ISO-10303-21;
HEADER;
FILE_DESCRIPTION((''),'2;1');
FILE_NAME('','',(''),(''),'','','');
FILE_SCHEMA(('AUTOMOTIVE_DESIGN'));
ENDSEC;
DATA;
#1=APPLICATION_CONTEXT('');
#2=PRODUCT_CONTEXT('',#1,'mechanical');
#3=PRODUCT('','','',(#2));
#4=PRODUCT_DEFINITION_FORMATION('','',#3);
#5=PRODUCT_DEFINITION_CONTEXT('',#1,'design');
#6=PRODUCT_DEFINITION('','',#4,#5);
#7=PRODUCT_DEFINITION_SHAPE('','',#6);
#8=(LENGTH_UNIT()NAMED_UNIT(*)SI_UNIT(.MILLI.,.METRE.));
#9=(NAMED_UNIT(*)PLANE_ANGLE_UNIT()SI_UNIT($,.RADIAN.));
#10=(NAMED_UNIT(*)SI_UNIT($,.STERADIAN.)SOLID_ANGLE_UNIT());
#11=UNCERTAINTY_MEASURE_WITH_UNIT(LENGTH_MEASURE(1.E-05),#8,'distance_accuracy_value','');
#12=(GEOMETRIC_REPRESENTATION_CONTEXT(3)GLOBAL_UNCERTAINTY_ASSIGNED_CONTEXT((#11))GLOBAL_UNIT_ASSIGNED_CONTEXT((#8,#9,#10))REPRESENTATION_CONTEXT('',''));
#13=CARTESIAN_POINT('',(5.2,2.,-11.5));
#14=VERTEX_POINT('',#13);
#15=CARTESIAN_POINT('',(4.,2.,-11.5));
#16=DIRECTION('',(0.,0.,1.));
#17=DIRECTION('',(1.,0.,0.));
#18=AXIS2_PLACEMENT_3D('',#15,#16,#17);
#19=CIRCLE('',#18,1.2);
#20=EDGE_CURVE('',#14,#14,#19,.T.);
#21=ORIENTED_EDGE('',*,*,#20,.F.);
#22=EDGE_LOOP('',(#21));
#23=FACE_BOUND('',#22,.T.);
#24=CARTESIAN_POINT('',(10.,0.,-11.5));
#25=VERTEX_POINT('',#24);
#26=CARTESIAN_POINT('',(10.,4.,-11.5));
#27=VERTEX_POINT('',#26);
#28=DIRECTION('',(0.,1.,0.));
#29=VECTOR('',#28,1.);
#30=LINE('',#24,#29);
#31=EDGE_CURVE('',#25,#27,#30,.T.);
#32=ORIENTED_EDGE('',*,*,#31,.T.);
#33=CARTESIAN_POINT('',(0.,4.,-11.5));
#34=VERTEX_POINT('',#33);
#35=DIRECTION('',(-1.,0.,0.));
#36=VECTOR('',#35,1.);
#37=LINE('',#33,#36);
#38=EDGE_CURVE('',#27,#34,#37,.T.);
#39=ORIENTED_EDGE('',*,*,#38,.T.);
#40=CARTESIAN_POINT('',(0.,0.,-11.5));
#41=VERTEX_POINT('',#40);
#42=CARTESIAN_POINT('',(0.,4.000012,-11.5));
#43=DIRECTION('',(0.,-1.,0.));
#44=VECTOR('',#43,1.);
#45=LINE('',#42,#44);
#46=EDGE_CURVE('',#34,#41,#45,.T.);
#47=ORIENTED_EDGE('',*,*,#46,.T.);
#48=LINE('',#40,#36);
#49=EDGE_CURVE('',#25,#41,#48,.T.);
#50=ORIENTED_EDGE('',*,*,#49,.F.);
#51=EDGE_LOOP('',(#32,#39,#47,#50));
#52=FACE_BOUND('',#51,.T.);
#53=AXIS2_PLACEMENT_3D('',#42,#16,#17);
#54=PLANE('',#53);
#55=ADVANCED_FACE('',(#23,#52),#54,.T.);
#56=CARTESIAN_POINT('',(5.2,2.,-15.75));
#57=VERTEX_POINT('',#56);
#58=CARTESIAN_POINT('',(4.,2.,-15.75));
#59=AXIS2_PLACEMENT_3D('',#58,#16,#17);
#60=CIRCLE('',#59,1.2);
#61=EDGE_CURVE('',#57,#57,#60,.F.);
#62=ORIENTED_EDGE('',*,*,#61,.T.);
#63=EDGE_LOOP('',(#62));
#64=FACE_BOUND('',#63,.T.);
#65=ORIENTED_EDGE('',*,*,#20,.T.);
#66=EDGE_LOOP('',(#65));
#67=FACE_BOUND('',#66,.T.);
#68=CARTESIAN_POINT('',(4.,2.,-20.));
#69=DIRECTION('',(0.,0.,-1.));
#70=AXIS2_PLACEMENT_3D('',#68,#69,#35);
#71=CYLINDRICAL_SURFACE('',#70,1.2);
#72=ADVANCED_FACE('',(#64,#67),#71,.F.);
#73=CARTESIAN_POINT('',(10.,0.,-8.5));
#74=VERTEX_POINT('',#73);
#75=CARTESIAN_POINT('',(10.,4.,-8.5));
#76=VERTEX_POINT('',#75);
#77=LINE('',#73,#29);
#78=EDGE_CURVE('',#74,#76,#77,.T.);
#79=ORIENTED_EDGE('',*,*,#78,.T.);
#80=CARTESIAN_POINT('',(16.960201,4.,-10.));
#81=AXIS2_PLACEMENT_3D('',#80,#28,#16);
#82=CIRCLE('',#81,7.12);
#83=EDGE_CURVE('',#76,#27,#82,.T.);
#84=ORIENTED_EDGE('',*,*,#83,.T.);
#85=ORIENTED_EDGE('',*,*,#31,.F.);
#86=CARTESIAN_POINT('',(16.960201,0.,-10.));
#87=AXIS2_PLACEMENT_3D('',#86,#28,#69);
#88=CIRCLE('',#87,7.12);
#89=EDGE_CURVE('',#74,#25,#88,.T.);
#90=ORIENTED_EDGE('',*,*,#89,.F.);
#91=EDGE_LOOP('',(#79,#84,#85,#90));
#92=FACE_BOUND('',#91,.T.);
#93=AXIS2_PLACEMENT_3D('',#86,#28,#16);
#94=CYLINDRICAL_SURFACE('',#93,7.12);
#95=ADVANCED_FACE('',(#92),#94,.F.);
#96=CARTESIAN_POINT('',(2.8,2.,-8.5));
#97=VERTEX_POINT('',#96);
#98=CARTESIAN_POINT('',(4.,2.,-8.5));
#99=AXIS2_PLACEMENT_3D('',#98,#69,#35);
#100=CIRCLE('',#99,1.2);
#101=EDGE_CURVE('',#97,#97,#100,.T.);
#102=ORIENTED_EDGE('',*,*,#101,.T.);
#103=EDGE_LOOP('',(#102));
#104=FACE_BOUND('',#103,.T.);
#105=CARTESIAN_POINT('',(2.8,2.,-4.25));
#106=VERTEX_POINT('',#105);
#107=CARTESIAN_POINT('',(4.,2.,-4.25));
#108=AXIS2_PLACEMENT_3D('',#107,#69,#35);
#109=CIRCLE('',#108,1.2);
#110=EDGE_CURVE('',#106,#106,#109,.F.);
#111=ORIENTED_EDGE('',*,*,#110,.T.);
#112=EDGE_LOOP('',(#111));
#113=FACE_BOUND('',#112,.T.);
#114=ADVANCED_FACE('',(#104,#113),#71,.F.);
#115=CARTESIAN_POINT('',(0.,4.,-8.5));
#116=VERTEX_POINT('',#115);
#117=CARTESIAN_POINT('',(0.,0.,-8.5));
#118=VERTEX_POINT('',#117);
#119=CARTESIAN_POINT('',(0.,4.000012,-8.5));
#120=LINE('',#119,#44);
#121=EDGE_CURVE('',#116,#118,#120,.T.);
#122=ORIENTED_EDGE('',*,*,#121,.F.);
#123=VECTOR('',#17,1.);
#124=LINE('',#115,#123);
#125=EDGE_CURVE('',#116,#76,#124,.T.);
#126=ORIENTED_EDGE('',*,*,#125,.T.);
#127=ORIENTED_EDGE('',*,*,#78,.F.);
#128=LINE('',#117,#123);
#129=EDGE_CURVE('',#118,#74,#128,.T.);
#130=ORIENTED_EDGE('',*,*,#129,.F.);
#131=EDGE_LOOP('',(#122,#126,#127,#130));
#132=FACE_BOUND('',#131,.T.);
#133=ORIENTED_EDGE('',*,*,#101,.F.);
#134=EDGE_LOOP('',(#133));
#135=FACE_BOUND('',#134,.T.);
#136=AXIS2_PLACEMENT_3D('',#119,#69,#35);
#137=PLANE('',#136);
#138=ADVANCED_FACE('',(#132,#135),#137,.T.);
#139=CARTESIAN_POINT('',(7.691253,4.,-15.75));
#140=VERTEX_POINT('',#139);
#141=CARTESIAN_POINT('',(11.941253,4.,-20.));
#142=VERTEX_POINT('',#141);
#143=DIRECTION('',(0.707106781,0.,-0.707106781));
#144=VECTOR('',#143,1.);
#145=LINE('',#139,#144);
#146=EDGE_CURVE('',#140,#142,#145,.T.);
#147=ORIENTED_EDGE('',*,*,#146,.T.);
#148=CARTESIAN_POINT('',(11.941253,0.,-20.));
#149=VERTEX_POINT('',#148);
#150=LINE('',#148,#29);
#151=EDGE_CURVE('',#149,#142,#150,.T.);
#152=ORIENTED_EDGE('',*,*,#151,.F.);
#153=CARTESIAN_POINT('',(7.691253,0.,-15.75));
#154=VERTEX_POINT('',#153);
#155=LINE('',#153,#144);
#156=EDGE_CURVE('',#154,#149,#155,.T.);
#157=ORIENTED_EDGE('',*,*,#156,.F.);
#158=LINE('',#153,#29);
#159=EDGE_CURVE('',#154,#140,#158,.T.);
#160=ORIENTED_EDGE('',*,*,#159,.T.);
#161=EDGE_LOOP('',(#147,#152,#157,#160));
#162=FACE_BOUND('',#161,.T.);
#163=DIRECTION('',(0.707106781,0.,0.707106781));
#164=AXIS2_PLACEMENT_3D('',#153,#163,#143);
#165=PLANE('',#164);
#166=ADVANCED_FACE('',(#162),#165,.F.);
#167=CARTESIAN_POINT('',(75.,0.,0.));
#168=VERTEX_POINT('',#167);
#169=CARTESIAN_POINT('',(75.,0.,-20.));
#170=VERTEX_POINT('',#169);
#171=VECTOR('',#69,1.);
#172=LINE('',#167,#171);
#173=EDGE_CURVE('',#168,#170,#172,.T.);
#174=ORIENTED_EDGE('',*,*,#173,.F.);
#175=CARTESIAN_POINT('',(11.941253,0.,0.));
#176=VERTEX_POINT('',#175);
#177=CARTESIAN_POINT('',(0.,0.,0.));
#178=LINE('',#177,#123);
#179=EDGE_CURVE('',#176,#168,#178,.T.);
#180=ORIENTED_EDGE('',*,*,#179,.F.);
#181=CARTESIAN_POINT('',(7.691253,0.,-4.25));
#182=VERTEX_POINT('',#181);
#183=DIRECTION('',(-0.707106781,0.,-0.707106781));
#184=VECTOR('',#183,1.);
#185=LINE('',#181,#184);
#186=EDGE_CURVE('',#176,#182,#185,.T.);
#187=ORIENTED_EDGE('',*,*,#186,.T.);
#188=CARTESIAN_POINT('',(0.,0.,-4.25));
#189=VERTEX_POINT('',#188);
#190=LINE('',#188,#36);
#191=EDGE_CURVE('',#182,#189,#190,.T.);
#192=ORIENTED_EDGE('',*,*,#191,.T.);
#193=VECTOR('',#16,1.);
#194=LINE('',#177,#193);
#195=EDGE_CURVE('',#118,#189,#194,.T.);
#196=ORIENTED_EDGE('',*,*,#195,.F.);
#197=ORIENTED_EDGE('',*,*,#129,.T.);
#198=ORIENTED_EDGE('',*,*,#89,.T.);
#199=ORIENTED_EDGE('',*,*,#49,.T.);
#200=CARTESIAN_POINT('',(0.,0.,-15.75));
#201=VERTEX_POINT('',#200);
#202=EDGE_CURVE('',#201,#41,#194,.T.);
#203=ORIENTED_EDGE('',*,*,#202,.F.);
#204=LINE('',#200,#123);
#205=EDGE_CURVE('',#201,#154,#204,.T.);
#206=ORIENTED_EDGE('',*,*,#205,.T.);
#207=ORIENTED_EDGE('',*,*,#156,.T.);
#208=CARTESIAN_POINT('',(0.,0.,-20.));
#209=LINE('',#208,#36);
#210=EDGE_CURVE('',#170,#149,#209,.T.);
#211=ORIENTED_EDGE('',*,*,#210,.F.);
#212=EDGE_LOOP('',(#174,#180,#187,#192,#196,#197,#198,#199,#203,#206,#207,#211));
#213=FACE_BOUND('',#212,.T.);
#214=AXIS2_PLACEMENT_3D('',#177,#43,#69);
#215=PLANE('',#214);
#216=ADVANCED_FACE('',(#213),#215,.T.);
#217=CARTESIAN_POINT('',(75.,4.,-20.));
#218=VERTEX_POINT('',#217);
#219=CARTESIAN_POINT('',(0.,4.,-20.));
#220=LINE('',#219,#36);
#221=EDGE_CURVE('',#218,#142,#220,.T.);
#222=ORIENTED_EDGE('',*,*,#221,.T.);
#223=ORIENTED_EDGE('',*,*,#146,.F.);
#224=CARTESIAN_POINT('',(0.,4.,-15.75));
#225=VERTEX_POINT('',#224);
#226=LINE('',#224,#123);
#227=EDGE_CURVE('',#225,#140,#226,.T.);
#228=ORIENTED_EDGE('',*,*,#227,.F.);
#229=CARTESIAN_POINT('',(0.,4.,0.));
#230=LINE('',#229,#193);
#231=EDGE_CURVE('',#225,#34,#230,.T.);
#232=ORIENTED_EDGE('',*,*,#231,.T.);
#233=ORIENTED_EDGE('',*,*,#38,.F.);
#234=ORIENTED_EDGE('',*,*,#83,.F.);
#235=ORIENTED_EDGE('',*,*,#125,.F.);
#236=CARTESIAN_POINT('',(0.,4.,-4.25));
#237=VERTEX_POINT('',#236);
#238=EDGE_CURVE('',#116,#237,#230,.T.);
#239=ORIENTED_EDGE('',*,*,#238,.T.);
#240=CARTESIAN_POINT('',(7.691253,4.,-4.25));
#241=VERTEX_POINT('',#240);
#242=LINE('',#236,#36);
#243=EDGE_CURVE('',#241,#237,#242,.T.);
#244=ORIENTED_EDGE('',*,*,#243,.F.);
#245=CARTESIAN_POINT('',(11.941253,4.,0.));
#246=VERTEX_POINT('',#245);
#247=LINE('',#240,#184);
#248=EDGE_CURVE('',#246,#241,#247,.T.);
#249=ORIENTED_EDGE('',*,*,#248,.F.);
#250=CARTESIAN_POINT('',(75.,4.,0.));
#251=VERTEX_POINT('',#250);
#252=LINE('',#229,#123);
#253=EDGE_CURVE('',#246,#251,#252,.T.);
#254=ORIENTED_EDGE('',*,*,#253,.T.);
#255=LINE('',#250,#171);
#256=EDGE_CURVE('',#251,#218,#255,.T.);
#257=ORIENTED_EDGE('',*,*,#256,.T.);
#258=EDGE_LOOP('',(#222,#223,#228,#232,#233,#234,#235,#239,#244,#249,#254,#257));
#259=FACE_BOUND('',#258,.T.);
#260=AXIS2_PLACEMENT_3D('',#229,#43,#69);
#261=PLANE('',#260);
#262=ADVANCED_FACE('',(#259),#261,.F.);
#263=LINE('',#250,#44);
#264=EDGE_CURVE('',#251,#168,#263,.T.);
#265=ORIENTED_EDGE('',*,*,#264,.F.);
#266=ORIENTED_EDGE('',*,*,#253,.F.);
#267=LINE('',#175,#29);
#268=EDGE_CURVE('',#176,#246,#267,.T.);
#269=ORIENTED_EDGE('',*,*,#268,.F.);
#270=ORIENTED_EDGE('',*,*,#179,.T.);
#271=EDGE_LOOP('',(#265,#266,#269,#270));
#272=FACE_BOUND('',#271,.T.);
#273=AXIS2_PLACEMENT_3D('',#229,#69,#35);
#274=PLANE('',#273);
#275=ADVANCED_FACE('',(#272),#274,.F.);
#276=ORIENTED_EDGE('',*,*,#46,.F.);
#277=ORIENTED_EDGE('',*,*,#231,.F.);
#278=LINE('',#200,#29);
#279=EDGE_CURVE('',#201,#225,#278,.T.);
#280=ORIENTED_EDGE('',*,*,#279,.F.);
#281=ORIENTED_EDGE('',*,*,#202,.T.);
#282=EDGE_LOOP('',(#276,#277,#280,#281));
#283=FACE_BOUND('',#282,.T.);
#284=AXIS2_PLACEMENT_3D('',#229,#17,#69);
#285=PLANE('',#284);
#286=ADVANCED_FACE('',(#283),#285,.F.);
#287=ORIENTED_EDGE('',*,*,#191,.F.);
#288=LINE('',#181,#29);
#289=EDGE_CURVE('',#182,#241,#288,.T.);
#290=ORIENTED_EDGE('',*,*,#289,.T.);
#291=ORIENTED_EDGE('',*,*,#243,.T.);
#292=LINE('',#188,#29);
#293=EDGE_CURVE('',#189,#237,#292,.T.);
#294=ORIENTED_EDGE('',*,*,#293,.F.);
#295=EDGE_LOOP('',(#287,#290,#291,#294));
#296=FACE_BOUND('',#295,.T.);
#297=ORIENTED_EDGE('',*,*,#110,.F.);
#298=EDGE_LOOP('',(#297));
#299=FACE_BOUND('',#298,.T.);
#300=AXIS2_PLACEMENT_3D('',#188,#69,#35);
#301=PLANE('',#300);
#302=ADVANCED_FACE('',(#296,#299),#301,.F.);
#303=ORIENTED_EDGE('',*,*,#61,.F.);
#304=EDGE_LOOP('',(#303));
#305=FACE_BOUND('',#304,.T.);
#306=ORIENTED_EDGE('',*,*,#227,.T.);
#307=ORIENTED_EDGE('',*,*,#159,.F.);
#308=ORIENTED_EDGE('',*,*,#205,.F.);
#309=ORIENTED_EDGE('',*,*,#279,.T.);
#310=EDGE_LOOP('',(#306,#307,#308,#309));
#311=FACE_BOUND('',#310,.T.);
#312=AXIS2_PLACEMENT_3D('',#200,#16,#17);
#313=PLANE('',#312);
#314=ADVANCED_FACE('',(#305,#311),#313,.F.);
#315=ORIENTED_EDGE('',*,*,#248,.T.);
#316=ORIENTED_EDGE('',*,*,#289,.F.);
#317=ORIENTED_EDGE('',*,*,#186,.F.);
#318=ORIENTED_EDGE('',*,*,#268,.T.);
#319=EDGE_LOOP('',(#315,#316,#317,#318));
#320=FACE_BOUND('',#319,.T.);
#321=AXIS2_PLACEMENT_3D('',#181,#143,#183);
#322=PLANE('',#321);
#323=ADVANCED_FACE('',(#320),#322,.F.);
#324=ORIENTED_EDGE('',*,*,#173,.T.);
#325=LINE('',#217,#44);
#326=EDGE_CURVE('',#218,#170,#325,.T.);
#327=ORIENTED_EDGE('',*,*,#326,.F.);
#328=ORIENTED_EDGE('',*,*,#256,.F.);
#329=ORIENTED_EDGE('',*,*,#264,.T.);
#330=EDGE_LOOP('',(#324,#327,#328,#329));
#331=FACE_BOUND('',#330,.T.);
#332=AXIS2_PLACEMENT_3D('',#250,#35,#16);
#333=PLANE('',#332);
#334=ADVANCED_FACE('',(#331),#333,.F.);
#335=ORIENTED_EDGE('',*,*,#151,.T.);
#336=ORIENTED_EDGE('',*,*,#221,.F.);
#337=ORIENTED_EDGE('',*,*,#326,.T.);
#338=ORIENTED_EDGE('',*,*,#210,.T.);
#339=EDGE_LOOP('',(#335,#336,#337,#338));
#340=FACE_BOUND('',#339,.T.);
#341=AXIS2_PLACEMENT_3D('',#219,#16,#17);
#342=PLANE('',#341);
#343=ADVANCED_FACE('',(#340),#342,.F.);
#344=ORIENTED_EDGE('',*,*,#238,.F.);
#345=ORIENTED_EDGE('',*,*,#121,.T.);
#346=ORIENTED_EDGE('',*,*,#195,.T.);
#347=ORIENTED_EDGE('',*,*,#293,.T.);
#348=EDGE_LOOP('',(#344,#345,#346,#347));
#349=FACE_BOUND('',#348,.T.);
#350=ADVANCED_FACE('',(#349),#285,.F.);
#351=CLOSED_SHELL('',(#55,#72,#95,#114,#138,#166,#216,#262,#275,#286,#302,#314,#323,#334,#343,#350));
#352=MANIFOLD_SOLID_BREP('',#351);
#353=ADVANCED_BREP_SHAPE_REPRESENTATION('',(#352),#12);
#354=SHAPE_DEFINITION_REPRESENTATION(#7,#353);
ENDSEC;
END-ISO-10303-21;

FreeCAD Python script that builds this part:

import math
import FreeCAD as App
import Part
import Sketcher

doc = App.newDocument("Part")
body = doc.addObject("PartDesign::Body", "Body")

sketch1 = body.newObject("Sketcher::SketchObject", "Sketch")
sketch1.AttachmentSupport = (doc.getObject("XZ_Plane"), [""])
sketch1.MapMode = "FlatFace"
sketch1.addGeometry([
    Part.LineSegment(App.Vector(0, -20, 0), App.Vector(0, 0, 0)),
    Part.LineSegment(App.Vector(0, 0, 0), App.Vector(75, 0, 0)),
    Part.LineSegment(App.Vector(75, 0, 0), App.Vector(75, -20, 0)),
    Part.LineSegment(App.Vector(75, -20, 0), App.Vector(0, -20, 0)),
], False)
sketch1.addConstraint([
    Sketcher.Constraint("Coincident", 0, 2, 1, 1),
    Sketcher.Constraint("Coincident", 1, 2, 2, 1),
    Sketcher.Constraint("Coincident", 2, 2, 3, 1),
    Sketcher.Constraint("Coincident", 3, 2, 0, 1),
    Sketcher.Constraint("Vertical", 0),
    Sketcher.Constraint("Horizontal", 1),
    Sketcher.Constraint("Vertical", 2),
    Sketcher.Constraint("Horizontal", 3),
    Sketcher.Constraint("Coincident", 0, 2, -1, 1),
    Sketcher.Constraint("DistanceX", 1, 1, 1, 2, 75.0),
    Sketcher.Constraint("DistanceY", 0, 1, 0, 2, 20.0),
])
pad1 = body.newObject("PartDesign::Pad", "Pad")
pad1.Profile = sketch1
pad1.Length = 4
pad1.Reversed = True

sketch2 = body.newObject("Sketcher::SketchObject", "Sketch001")
sketch2.AttachmentSupport = (doc.getObject("XZ_Plane"), [""])
sketch2.MapMode = "FlatFace"
sketch2.AttachmentOffset = App.Placement(App.Vector(0, 0, -4), App.Rotation())
sketch2.addGeometry([
    Part.LineSegment(App.Vector(0, -8.5, 0), App.Vector(10, -8.5, 0)),
    Part.ArcOfCircle(Part.Circle(App.Vector(17, -10, 0), App.Vector(0, 0, 1), 7.1), math.radians(-168), math.radians(168)),
    Part.LineSegment(App.Vector(10, -11.5, 0), App.Vector(0, -11.5, 0)),
    Part.LineSegment(App.Vector(0, -11.5, 0), App.Vector(0, -8.5, 0)),
], False)
sketch2.addConstraint([
    Sketcher.Constraint("Coincident", 0, 2, 1, 2),
    Sketcher.Constraint("Coincident", 1, 1, 2, 1),
    Sketcher.Constraint("Coincident", 2, 2, 3, 1),
    Sketcher.Constraint("Coincident", 3, 2, 0, 1),
    Sketcher.Constraint("Horizontal", 0),
    Sketcher.Constraint("Horizontal", 2),
    Sketcher.Constraint("Vertical", 3),
    Sketcher.Constraint("PointOnObject", 2, 2, -2),
    Sketcher.Constraint("Vertical", 0, 2, 1, 1),
    Sketcher.Constraint("DistanceX", 0, 1, 0, 2, 10.0),
    Sketcher.Constraint("DistanceY", 3, 1, 3, 2, 3.0),
    Sketcher.Constraint("Radius", 1, 7.12),
    Sketcher.Constraint("DistanceY", 1, 3, -1, 1, 10.0),
])
pocket1 = body.newObject("PartDesign::Pocket", "Pocket")
pocket1.Profile = sketch2
pocket1.Type = "ThroughAll"
pocket1.Midplane = True

sketch3 = body.newObject("Sketcher::SketchObject", "Sketch002")
sketch3.AttachmentSupport = (doc.getObject("XY_Plane"), [""])
sketch3.MapMode = "FlatFace"
sketch3.AttachmentOffset = App.Placement(App.Vector(0, 0, -20), App.Rotation())
sketch3.addGeometry(Part.Circle(App.Vector(4, 2, 0), App.Vector(0, 0, 1), 1.2), False)
sketch3.addConstraint([
    Sketcher.Constraint("Diameter", 0, 2.4),
    Sketcher.Constraint("DistanceX", -1, 1, 0, 3, 4.0),
    Sketcher.Constraint("DistanceY", -1, 1, 0, 3, 2.0),
])
doc.recompute()
hole = body.newObject("PartDesign::Hole", "Hole")
hole.Profile = sketch3
hole.ThreadType = "None"
hole.Diameter = 2.4
hole.DepthType = "ThroughAll"
hole.Reversed = True

sketch4 = body.newObject("Sketcher::SketchObject", "Sketch003")
sketch4.AttachmentSupport = (doc.getObject("XZ_Plane"), [""])
sketch4.MapMode = "FlatFace"
sketch4.AttachmentOffset = App.Placement(App.Vector(0, 0, -4), App.Rotation())
sketch4.addGeometry([
    Part.LineSegment(App.Vector(0, -15.8, 0), App.Vector(7.7, -15.8, 0)),
    Part.LineSegment(App.Vector(7.7, -15.8, 0), App.Vector(11.9, -20, 0)),
    Part.LineSegment(App.Vector(11.9, -20, 0), App.Vector(0, -20, 0)),
    Part.LineSegment(App.Vector(0, -20, 0), App.Vector(0, -15.8, 0)),
    Part.LineSegment(App.Vector(0, -4.2, 0), App.Vector(0, 0, 0)),
    Part.LineSegment(App.Vector(0, 0, 0), App.Vector(11.9, 0, 0)),
    Part.LineSegment(App.Vector(11.9, 0, 0), App.Vector(7.7, -4.2, 0)),
    Part.LineSegment(App.Vector(7.7, -4.2, 0), App.Vector(0, -4.2, 0)),
], False)
sketch4.addConstraint([
    Sketcher.Constraint("Coincident", 0, 2, 1, 1),
    Sketcher.Constraint("Coincident", 1, 2, 2, 1),
    Sketcher.Constraint("Coincident", 2, 2, 3, 1),
    Sketcher.Constraint("Coincident", 3, 2, 0, 1),
    Sketcher.Constraint("Coincident", 4, 2, 5, 1),
    Sketcher.Constraint("Coincident", 5, 2, 6, 1),
    Sketcher.Constraint("Coincident", 6, 2, 7, 1),
    Sketcher.Constraint("Coincident", 7, 2, 4, 1),
    Sketcher.Constraint("Horizontal", 0),
    Sketcher.Constraint("Horizontal", 2),
    Sketcher.Constraint("Vertical", 3),
    Sketcher.Constraint("Vertical", 4),
    Sketcher.Constraint("Horizontal", 5),
    Sketcher.Constraint("Horizontal", 7),
    Sketcher.Constraint("Coincident", 4, 2, -1, 1),
    Sketcher.Constraint("PointOnObject", 2, 2, -2),
    Sketcher.Constraint("Perpendicular", 1, 6),
    Sketcher.Constraint("Vertical", 1, 2, 5, 2),
    Sketcher.Constraint("Vertical", 0, 2, 6, 2),
    Sketcher.Constraint("Equal", 3, 4),
    Sketcher.Constraint("DistanceY", 1, 2, -1, 1, 20.0),
    Sketcher.Constraint("DistanceY", 3, 1, 3, 2, 4.25),
    Sketcher.Constraint("DistanceX", 0, 1, 0, 2, 7.691253),
])
pocket2 = body.newObject("PartDesign::Pocket", "Pocket001")
pocket2.Profile = sketch4
pocket2.Length = 4
pocket2.Reversed = True

doc.recompute()
